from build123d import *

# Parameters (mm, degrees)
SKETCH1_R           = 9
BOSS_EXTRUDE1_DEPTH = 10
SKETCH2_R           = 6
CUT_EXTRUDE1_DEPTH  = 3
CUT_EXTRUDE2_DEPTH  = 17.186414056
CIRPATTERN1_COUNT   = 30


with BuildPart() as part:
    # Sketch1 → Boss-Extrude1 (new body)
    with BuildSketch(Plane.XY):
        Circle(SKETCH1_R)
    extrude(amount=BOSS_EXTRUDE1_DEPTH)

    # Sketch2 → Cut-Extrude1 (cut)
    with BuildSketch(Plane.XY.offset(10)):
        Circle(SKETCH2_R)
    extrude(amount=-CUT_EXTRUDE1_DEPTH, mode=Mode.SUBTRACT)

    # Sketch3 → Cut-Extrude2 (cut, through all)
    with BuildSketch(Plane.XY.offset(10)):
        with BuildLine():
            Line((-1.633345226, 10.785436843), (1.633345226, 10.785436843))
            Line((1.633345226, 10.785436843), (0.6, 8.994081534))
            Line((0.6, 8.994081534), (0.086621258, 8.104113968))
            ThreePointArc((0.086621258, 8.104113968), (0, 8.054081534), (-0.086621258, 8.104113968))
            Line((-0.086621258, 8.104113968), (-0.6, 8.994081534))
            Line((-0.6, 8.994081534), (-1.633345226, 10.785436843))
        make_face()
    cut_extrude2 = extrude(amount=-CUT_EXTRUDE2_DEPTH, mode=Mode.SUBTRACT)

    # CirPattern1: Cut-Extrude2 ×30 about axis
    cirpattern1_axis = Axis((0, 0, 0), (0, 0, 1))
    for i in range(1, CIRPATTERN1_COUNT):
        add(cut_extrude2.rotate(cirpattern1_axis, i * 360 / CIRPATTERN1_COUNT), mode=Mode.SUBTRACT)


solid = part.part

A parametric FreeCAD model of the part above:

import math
import FreeCAD as App
import Part
import Sketcher
from FreeCAD import Vector
Q = App.Units.Quantity

doc = App.newDocument("Part")
body = doc.addObject("PartDesign::Body", "Body")

sketch1 = doc.addObject("Sketcher::SketchObject", "Sketch")
body.addObject(sketch1)
sketch1.AttachmentSupport = (doc.XY_Plane, [""])
sketch1.MapMode = "FlatFace"
sketch1.addGeometry(Part.Circle(Vector(0, 0, 0), Vector(0, 0, 1), 9), False)
sketch1.addConstraint([
    Sketcher.Constraint("Coincident", 0, 3, -1, 1),
    Sketcher.Constraint("Diameter", 0, Q("18 mm")),
])
pad1 = doc.addObject("PartDesign::Pad", "Pad")
body.addObject(pad1)
pad1.Profile = sketch1
pad1.Length = 10

sketch2 = doc.addObject("Sketcher::SketchObject", "Sketch001")
body.addObject(sketch2)
sketch2.AttachmentSupport = (doc.XY_Plane, [""])
sketch2.MapMode = "FlatFace"
sketch2.AttachmentOffset = App.Placement(Vector(0, 0, 10), App.Rotation())
sketch2.addGeometry(Part.Circle(Vector(0, 0, 0), Vector(0, 0, 1), 6), False)
sketch2.addConstraint([
    Sketcher.Constraint("Coincident", 0, 3, -1, 1),
    Sketcher.Constraint("Diameter", 0, Q("12 mm")),
])
pocket1 = doc.addObject("PartDesign::Pocket", "Pocket")
body.addObject(pocket1)
pocket1.Profile = sketch2
pocket1.Length = 3

sketch3 = doc.addObject("Sketcher::SketchObject", "Sketch002")
body.addObject(sketch3)
sketch3.AttachmentSupport = (doc.XY_Plane, [""])
sketch3.MapMode = "FlatFace"
sketch3.AttachmentOffset = App.Placement(Vector(0, 0, 10), App.Rotation())
sketch3.addGeometry([
    Part.LineSegment(Vector(1.63, 10.79, 0), Vector(-1.63, 10.79, 0)),
    Part.LineSegment(Vector(-1.63, 10.79, 0), Vector(-0.6, 8.99, 0)),
    Part.LineSegment(Vector(-0.6, 8.99, 0), Vector(-0.09, 8.1, 0)),
    Part.ArcOfCircle(Part.Circle(Vector(0, 8.15, 0), Vector(0, 0, 1), 0.1), math.radians(-150), math.radians(-30)),
    Part.LineSegment(Vector(0.09, 8.1, 0), Vector(0.6, 8.99, 0)),
    Part.LineSegment(Vector(0.6, 8.99, 0), Vector(1.63, 10.79, 0)),
], False)
sketch3.addConstraint([
    Sketcher.Constraint("Coincident", 0, 2, 1, 1),
    Sketcher.Constraint("Coincident", 1, 2, 2, 1),
    Sketcher.Constraint("Tangent", 2, 2, 3, 1),
    Sketcher.Constraint("Tangent", 3, 2, 4, 1),
    Sketcher.Constraint("Coincident", 4, 2, 5, 1),
    Sketcher.Constraint("Coincident", 5, 2, 0, 1),
    Sketcher.Constraint("Horizontal", 0),
    Sketcher.Constraint("Symmetric", 2, 2, 3, 2, -2),
    Sketcher.Constraint("Parallel", 1, 2),
    Sketcher.Constraint("Parallel", 4, 5),
    Sketcher.Constraint("Horizontal", 1, 2, 4, 2),
    Sketcher.Constraint("Radius", 3, Q("0.1 mm")),
    Sketcher.Constraint("DistanceX", 1, 2, -1, 1, Q("0.6 mm")),
    Sketcher.Constraint("DistanceY", 3, 3, 1, 2, Q("0.84 mm")),
    Sketcher.Constraint("DistanceX", 0, 2, 0, 1, Q("3.26669 mm")),
    Sketcher.Constraint("DistanceY", -1, 1, 3, 3, Q("8.154082 mm")),
])
pocket2 = doc.addObject("PartDesign::Pocket", "Pocket001")
body.addObject(pocket2)
pocket2.Profile = sketch3
pocket2.Type = "ThroughAll"
doc.recompute()

polarpattern = doc.addObject("PartDesign::PolarPattern", "PolarPattern")
body.addObject(polarpattern)
polarpattern.Originals = [pocket2]
polarpattern.Axis = (doc.Z_Axis, [""])
polarpattern.Angle = 360
polarpattern.Occurrences = 30
body.Tip = polarpattern

doc.recompute()
